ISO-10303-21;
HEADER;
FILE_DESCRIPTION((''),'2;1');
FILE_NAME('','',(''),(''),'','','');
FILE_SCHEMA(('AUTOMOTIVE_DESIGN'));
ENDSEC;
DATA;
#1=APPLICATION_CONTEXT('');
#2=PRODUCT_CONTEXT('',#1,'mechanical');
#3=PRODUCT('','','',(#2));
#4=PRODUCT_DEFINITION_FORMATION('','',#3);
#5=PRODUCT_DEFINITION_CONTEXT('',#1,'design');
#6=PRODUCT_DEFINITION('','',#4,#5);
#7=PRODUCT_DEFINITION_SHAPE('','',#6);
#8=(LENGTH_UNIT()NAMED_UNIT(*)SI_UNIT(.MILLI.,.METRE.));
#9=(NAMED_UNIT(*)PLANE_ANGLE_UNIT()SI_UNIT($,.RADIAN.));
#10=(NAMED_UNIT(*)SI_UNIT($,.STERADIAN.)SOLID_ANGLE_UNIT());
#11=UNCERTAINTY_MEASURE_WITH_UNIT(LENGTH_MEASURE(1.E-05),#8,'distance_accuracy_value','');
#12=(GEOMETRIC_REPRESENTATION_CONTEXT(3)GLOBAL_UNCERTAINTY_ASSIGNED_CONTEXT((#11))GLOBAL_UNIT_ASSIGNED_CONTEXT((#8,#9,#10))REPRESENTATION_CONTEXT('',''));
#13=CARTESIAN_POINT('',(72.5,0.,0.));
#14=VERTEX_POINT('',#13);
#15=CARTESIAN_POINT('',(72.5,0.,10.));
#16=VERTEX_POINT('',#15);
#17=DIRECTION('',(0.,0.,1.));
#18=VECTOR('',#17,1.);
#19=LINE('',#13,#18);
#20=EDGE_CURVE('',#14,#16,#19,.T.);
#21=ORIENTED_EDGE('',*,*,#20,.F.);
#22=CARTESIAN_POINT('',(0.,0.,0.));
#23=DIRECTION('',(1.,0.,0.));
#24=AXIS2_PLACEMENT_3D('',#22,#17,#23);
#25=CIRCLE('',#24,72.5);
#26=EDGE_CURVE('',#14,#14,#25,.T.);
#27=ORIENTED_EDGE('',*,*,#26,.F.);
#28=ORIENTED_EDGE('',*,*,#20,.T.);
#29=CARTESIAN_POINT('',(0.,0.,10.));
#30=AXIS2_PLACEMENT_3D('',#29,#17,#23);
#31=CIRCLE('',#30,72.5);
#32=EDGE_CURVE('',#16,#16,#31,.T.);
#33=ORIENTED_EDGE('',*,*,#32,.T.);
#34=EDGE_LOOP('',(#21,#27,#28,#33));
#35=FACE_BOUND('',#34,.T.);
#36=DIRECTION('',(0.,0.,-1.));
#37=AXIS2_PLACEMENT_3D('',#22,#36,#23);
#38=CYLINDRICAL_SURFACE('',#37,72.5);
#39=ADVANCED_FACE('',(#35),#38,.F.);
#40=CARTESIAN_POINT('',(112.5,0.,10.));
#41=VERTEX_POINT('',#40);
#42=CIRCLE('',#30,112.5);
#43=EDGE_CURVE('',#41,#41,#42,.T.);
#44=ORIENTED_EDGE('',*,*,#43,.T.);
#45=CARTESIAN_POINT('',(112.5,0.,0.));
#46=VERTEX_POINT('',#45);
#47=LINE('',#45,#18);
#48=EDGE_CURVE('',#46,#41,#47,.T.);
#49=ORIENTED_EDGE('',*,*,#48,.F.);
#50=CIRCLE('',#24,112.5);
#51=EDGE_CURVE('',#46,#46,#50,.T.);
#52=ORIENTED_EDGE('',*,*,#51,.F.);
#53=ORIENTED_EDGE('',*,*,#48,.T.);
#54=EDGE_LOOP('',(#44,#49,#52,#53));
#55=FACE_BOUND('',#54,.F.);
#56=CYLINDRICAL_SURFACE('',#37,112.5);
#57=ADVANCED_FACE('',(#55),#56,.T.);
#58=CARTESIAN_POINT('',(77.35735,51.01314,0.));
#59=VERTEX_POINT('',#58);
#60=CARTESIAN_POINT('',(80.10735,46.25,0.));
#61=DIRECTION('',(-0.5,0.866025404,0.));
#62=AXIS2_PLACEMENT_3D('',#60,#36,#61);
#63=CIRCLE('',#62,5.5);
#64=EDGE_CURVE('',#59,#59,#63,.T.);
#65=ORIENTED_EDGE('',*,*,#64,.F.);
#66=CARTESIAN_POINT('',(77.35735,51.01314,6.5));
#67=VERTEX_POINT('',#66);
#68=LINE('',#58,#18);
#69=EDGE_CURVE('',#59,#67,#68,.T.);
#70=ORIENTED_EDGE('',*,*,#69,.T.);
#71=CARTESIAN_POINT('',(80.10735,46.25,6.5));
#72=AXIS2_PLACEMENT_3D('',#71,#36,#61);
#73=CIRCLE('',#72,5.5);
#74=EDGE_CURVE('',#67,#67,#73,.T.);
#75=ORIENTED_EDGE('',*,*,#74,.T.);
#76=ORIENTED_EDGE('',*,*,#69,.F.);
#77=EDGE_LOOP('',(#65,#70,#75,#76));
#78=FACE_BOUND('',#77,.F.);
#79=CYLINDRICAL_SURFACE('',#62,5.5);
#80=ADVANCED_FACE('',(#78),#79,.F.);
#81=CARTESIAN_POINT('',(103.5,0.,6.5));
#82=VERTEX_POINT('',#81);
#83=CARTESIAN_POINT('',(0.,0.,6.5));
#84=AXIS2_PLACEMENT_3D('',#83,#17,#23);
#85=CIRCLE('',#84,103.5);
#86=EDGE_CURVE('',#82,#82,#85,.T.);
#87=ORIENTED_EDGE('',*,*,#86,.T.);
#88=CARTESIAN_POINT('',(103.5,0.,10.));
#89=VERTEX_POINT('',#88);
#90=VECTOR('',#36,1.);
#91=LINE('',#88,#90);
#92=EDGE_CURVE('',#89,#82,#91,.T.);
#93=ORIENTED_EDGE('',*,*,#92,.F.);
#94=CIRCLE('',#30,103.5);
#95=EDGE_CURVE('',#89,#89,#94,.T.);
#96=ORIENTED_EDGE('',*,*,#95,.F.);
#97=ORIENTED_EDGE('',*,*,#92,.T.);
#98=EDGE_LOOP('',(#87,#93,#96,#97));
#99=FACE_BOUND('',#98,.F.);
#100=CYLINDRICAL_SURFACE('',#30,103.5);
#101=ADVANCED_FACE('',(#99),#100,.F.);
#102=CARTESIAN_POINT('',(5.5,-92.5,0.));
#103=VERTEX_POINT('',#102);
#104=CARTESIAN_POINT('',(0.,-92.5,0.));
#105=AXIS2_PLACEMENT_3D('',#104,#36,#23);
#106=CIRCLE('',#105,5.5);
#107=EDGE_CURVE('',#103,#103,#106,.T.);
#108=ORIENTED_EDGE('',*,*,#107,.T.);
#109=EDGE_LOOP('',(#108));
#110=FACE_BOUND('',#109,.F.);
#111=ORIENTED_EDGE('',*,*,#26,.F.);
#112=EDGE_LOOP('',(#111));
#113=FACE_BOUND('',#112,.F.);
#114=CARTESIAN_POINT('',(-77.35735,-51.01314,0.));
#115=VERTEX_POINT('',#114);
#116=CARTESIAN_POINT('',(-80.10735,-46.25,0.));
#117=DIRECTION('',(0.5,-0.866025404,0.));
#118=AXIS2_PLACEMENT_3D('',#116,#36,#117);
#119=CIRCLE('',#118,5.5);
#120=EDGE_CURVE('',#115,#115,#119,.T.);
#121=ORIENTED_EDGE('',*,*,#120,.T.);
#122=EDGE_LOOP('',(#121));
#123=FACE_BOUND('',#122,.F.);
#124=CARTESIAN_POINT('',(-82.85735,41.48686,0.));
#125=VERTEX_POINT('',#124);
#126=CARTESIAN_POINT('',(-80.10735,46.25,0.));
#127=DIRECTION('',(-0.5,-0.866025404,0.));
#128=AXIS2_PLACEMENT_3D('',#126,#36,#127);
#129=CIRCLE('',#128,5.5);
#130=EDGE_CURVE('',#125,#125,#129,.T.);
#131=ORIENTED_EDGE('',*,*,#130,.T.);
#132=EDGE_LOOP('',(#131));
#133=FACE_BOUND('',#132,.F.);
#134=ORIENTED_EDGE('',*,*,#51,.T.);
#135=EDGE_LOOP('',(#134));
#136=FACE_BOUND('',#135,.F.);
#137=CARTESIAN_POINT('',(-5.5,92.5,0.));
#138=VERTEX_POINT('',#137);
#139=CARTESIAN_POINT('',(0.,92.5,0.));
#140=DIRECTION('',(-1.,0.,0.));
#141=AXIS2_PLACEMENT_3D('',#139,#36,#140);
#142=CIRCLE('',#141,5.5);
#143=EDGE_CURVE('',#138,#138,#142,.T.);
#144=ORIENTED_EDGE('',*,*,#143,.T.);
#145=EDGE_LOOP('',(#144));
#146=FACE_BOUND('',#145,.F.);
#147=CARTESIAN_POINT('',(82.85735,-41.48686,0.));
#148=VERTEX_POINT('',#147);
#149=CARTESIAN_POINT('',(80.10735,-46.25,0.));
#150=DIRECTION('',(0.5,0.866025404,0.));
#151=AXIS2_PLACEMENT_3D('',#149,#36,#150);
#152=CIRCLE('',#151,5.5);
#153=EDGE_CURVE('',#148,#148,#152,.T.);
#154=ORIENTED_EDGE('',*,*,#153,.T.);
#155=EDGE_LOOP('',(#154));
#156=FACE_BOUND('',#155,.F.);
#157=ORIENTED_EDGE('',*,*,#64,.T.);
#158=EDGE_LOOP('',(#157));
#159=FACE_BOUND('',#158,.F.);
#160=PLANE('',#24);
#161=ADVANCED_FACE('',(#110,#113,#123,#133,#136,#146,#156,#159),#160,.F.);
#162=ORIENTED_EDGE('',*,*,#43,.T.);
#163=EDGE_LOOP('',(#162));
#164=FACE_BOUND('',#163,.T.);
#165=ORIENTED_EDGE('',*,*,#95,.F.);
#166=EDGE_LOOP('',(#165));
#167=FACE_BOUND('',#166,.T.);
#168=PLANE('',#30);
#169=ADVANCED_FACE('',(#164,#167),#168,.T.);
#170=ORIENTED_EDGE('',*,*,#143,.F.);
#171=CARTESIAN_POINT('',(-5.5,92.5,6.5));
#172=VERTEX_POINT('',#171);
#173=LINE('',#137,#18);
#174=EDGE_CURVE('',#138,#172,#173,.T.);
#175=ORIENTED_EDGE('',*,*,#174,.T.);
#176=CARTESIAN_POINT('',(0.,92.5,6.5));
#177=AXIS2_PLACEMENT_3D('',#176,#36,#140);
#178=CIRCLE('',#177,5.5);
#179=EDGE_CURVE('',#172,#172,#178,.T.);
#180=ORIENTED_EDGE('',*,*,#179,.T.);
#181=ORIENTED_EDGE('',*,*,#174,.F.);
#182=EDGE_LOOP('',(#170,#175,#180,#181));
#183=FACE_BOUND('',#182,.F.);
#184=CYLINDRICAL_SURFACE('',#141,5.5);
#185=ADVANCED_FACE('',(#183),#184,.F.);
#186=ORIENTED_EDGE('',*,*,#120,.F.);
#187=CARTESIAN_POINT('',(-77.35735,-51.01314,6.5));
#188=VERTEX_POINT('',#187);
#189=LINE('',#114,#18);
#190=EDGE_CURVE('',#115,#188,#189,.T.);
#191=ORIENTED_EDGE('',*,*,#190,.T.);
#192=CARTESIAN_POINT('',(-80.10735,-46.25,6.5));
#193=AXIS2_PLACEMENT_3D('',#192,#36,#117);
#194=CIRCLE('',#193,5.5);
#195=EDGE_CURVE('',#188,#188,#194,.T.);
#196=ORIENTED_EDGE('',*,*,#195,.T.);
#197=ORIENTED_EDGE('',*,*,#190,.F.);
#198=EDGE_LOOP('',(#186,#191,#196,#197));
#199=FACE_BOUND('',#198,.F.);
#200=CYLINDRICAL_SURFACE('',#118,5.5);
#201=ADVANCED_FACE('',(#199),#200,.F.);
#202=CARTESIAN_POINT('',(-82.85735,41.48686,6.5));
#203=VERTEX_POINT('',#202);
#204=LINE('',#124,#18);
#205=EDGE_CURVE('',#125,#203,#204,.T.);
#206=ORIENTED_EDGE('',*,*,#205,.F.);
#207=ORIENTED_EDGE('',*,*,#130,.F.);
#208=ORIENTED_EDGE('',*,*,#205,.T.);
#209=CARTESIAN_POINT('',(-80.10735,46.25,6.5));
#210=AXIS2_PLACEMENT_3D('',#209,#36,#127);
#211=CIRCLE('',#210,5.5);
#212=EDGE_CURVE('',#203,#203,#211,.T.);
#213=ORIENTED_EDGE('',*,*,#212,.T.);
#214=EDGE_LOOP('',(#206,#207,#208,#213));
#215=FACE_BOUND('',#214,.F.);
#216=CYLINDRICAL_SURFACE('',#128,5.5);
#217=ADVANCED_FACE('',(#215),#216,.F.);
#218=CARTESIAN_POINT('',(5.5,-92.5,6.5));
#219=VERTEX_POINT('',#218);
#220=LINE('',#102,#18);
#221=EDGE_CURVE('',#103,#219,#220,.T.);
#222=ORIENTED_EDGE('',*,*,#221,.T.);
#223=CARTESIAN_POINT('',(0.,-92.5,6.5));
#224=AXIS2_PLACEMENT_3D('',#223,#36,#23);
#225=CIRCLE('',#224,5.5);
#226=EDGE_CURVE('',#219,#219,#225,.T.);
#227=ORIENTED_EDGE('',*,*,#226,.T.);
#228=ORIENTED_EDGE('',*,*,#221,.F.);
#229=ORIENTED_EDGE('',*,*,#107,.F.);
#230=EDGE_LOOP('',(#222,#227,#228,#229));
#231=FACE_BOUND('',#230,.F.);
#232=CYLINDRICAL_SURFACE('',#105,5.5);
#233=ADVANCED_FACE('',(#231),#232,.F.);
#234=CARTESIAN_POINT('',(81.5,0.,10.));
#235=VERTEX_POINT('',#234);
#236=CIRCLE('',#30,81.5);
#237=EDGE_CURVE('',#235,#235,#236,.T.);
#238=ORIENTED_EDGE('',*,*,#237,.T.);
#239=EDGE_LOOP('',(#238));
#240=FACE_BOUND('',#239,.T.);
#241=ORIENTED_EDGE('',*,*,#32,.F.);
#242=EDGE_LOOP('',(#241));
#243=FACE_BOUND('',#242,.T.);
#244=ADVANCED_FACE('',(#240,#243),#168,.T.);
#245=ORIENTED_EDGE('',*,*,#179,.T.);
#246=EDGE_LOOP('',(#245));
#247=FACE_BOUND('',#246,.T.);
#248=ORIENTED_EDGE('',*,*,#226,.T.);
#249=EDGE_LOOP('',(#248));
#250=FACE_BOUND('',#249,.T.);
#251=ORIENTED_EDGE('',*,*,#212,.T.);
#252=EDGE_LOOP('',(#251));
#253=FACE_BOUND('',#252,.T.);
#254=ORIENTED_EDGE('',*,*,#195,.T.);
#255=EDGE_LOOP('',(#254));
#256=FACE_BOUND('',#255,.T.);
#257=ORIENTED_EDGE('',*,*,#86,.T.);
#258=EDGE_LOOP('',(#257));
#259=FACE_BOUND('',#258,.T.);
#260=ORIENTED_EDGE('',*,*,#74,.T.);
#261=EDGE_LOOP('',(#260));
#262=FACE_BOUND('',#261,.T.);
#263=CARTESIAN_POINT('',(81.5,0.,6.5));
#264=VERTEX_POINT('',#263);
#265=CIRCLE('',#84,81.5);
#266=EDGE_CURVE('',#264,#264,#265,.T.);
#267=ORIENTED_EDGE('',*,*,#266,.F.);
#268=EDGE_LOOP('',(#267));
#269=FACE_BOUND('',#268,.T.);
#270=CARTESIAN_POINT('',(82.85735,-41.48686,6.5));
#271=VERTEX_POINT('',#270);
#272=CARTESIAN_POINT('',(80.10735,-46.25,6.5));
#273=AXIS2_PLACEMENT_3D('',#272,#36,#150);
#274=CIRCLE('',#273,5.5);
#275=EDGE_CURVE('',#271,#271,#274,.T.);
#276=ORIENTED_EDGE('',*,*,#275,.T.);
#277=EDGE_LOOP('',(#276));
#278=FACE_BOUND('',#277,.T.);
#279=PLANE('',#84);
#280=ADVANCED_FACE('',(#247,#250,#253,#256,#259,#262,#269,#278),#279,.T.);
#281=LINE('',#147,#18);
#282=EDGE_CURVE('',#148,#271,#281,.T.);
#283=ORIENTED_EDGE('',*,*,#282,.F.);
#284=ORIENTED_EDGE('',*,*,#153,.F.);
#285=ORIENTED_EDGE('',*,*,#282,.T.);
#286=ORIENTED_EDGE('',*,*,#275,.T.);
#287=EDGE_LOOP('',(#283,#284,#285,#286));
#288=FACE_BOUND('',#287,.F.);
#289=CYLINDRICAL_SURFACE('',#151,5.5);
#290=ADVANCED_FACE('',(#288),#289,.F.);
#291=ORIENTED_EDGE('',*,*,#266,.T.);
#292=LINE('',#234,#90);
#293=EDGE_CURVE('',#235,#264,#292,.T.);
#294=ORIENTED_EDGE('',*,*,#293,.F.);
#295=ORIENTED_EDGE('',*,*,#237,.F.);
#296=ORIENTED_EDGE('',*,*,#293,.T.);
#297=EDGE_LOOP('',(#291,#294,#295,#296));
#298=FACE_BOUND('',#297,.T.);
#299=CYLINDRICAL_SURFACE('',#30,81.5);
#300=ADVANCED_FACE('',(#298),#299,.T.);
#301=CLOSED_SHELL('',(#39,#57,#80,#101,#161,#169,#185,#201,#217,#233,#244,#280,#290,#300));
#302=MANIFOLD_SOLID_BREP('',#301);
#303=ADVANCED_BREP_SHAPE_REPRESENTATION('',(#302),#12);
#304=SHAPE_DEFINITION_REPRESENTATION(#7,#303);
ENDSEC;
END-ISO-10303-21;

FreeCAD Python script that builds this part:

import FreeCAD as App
import Part
import Sketcher
from FreeCAD import Vector

doc = App.newDocument("Part")
body = doc.addObject("PartDesign::Body", "Body")

# Sketch on XY plane
sketch1 = body.newObject("Sketcher::SketchObject", "Sketch")
sketch1.AttachmentSupport = (doc.getObject("XY_Plane"), [""])
sketch1.MapMode = "FlatFace"
sketch1.addGeometry([
    Part.Circle(Vector(0, 0, 0), Vector(0, 0, 1), 112),
    Part.Circle(Vector(0, 0, 0), Vector(0, 0, 1), 72),
], False)
sketch1.addConstraint([
    Sketcher.Constraint("Coincident", 0, 3, -1, 1),
    Sketcher.Constraint("Coincident", 1, 3, -1, 1),
    Sketcher.Constraint("Diameter", 0, 225.0),
    Sketcher.Constraint("Diameter", 1, 145.0),
])
pad1 = body.newObject("PartDesign::Pad", "Pad")
pad1.Profile = sketch1
pad1.Length = 10

# Sketch on XY plane
sketch2 = body.newObject("Sketcher::SketchObject", "Sketch001")
sketch2.AttachmentSupport = (doc.getObject("XY_Plane"), [""])
sketch2.MapMode = "FlatFace"
sketch2.AttachmentOffset = App.Placement(Vector(0, 0, 10), App.Rotation())
sketch2.addGeometry([
    Part.Circle(Vector(0, 0, 0), Vector(0, 0, 1), 104),
    Part.Circle(Vector(0, 0, 0), Vector(0, 0, 1), 82),
], False)
sketch2.addConstraint([
    Sketcher.Constraint("Coincident", 0, 3, -1, 1),
    Sketcher.Constraint("Coincident", 1, 3, -1, 1),
    Sketcher.Constraint("Diameter", 0, 207.0),
    Sketcher.Constraint("Diameter", 1, 163.0),
])
pocket1 = body.newObject("PartDesign::Pocket", "Pocket")
pocket1.Profile = sketch2
pocket1.Length = 3.5

# Sketch on XY plane
sketch3 = body.newObject("Sketcher::SketchObject", "Sketch002")
sketch3.AttachmentSupport = (doc.getObject("XY_Plane"), [""])
sketch3.MapMode = "FlatFace"
sketch3.addGeometry(Part.Circle(Vector(0, 92, 0), Vector(0, 0, 1), 6), False)
sketch3.addConstraint([
    Sketcher.Constraint("PointOnObject", 0, 3, -2),
    Sketcher.Constraint("Diameter", 0, 11.0),
    Sketcher.Constraint("DistanceY", -1, 1, 0, 3, 92.5),
])
pocket2 = body.newObject("PartDesign::Pocket", "Pocket001")
pocket2.Profile = sketch3
pocket2.Type = "ThroughAll"
pocket2.Midplane = True
doc.recompute()

polarpattern = body.newObject("PartDesign::PolarPattern", "PolarPattern")
polarpattern.Originals = [pocket2]
polarpattern.Axis = (doc.getObject("Z_Axis"), [""])
polarpattern.Angle = 360
polarpattern.Occurrences = 6
body.Tip = polarpattern

doc.recompute()
